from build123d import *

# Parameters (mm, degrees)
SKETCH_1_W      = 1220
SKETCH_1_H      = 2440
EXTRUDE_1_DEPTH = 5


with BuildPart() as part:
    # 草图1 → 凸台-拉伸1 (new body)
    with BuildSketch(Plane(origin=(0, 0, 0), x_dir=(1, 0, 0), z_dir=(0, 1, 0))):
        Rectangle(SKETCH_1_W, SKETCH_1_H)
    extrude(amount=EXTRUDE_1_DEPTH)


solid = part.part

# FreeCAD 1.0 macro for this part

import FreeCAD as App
import Part
import Sketcher
Q = App.Units.Quantity

doc = App.newDocument("Part")
body = doc.addObject("PartDesign::Body", "Body")

sketch1 = doc.addObject("Sketcher::SketchObject", "Sketch")
body.addObject(sketch1)
sketch1.AttachmentSupport = (doc.XZ_Plane, [""])
sketch1.MapMode = "FlatFace"
sketch1.addGeometry([
    Part.LineSegment(App.Vector(-610, -1220, 0), App.Vector(-610, 1220, 0)),
    Part.LineSegment(App.Vector(-610, 1220, 0), App.Vector(610, 1220, 0)),
    Part.LineSegment(App.Vector(610, 1220, 0), App.Vector(610, -1220, 0)),
    Part.LineSegment(App.Vector(610, -1220, 0), App.Vector(-610, -1220, 0)),
], False)
sketch1.addConstraint([
    Sketcher.Constraint("Coincident", 0, 2, 1, 1),
    Sketcher.Constraint("Coincident", 1, 2, 2, 1),
    Sketcher.Constraint("Coincident", 2, 2, 3, 1),
    Sketcher.Constraint("Coincident", 3, 2, 0, 1),
    Sketcher.Constraint("Vertical", 0),
    Sketcher.Constraint("Horizontal", 1),
    Sketcher.Constraint("Vertical", 2),
    Sketcher.Constraint("Horizontal", 3),
    Sketcher.Constraint("Symmetric", 0, 2, 2, 2, -1, 1),
    Sketcher.Constraint("DistanceX", 1, 1, 1, 2, Q("1220 mm")),
    Sketcher.Constraint("DistanceY", 0, 1, 0, 2, Q("2440 mm")),
])
pad1 = doc.addObject("PartDesign::Pad", "Pad")
body.addObject(pad1)
pad1.Profile = sketch1
pad1.Length = 5
pad1.Reversed = True

doc.recompute()
